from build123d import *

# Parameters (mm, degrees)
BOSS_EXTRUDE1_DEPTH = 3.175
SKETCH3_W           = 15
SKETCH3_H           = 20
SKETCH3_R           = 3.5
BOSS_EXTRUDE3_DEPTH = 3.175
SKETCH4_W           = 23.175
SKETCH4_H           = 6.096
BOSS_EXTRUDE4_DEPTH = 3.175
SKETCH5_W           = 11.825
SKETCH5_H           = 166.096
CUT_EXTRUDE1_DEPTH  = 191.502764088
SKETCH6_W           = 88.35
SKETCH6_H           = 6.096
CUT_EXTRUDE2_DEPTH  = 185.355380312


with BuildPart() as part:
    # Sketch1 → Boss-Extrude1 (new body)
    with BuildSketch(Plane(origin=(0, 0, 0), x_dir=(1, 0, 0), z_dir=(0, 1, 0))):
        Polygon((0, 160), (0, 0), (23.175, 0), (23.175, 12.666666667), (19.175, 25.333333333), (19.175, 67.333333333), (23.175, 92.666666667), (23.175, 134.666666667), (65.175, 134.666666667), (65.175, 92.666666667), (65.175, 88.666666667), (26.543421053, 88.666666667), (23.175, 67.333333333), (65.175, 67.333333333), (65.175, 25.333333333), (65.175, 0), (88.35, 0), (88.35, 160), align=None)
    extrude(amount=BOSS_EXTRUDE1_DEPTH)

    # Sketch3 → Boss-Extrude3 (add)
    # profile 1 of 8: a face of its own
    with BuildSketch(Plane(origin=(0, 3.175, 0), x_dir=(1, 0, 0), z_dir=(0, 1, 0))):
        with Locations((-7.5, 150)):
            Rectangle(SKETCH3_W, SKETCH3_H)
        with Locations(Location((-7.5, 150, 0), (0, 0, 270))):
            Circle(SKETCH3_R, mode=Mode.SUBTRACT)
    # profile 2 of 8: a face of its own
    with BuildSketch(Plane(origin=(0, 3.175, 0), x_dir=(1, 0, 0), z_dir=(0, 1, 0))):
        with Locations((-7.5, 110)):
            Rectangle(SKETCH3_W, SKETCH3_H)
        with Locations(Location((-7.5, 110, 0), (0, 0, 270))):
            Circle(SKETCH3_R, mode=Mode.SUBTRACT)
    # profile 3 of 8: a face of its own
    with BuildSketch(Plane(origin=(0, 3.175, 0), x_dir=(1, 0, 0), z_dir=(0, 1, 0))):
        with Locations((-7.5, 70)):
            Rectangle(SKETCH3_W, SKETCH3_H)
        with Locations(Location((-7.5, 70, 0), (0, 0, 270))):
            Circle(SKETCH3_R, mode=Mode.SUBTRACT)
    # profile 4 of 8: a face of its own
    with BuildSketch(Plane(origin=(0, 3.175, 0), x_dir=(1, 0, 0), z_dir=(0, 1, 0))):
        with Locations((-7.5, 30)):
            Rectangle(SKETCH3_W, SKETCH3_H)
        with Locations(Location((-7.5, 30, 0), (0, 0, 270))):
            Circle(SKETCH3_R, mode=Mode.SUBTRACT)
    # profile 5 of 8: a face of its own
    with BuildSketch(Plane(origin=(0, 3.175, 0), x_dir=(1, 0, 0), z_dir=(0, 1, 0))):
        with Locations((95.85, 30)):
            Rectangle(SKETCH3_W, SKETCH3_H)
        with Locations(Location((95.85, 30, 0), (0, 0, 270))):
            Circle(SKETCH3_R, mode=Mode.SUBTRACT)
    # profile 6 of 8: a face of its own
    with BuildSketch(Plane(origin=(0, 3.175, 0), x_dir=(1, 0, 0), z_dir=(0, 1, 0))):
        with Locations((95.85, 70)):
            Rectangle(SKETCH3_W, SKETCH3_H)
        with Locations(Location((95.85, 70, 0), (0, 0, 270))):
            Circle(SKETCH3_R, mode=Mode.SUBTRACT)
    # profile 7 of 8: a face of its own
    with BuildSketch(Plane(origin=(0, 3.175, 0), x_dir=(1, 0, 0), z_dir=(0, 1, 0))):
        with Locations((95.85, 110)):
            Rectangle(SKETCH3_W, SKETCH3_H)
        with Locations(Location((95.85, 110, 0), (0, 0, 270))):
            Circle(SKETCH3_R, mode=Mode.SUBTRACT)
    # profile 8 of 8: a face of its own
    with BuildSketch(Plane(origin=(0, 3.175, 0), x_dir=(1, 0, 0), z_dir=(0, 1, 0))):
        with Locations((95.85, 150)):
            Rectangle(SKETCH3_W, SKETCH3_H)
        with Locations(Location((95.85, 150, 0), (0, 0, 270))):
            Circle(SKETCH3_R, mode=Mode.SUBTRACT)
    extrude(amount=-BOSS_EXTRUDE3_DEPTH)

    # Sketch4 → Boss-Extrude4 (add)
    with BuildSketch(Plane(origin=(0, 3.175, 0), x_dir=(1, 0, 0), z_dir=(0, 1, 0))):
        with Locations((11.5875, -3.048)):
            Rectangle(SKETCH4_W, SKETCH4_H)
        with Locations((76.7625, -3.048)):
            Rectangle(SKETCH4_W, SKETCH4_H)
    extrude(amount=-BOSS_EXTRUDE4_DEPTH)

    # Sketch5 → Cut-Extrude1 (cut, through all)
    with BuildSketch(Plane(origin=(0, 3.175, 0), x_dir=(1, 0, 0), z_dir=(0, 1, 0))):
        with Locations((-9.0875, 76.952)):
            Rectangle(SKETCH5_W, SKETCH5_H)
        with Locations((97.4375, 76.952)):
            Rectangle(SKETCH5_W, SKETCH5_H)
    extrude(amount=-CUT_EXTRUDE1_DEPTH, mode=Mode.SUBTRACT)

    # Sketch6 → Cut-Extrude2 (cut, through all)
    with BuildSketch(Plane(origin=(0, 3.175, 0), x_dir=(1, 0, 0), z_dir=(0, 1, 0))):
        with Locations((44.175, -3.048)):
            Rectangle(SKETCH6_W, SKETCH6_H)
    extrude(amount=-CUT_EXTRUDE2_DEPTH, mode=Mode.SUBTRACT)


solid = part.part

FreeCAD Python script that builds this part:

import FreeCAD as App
import Part
import Sketcher
from FreeCAD import Vector
Q = App.Units.Quantity

doc = App.newDocument("Part")
body = doc.addObject("PartDesign::Body", "Body")

sketch1 = doc.addObject("Sketcher::SketchObject", "Sketch")
body.addObject(sketch1)
sketch1.AttachmentSupport = (doc.XZ_Plane, [""])
sketch1.MapMode = "FlatFace"
sketch1.addGeometry([
    Part.LineSegment(Vector(0, -160, 0), Vector(0, 0, 0)),
    Part.LineSegment(Vector(0, 0, 0), Vector(23.175, 0, 0)),
    Part.LineSegment(Vector(23.175, 0, 0), Vector(23.175, -12.666667, 0)),
    Part.LineSegment(Vector(23.175, -12.666667, 0), Vector(19.175, -25.333333, 0)),
    Part.LineSegment(Vector(19.175, -25.333333, 0), Vector(19.175, -67.333333, 0)),
    Part.LineSegment(Vector(19.175, -67.333333, 0), Vector(23.175, -92.666667, 0)),
    Part.LineSegment(Vector(23.175, -92.666667, 0), Vector(23.175, -134.666667, 0)),
    Part.LineSegment(Vector(23.175, -134.666667, 0), Vector(65.175, -134.666667, 0)),
    Part.LineSegment(Vector(65.175, -134.666667, 0), Vector(65.175, -88.666667, 0)),
    Part.LineSegment(Vector(65.175, -88.666667, 0), Vector(26.543421, -88.666667, 0)),
    Part.LineSegment(Vector(26.543421, -88.666667, 0), Vector(23.175, -67.333333, 0)),
    Part.LineSegment(Vector(23.175, -67.333333, 0), Vector(65.175, -67.333333, 0)),
    Part.LineSegment(Vector(65.175, -67.333333, 0), Vector(65.175, 0, 0)),
    Part.LineSegment(Vector(65.175, 0, 0), Vector(88.35, 0, 0)),
    Part.LineSegment(Vector(88.35, 0, 0), Vector(88.35, -160, 0)),
    Part.LineSegment(Vector(88.35, -160, 0), Vector(0, -160, 0)),
], False)
sketch1.addConstraint([
    Sketcher.Constraint("Coincident", 0, 2, 1, 1),
    Sketcher.Constraint("Coincident", 1, 2, 2, 1),
    Sketcher.Constraint("Coincident", 2, 2, 3, 1),
    Sketcher.Constraint("Coincident", 3, 2, 4, 1),
    Sketcher.Constraint("Coincident", 4, 2, 5, 1),
    Sketcher.Constraint("Coincident", 5, 2, 6, 1),
    Sketcher.Constraint("Coincident", 6, 2, 7, 1),
    Sketcher.Constraint("Coincident", 7, 2, 8, 1),
    Sketcher.Constraint("Coincident", 8, 2, 9, 1),
    Sketcher.Constraint("Coincident", 9, 2, 10, 1),
    Sketcher.Constraint("Coincident", 10, 2, 11, 1),
    Sketcher.Constraint("Coincident", 11, 2, 12, 1),
    Sketcher.Constraint("Coincident", 12, 2, 13, 1),
    Sketcher.Constraint("Coincident", 13, 2, 14, 1),
    Sketcher.Constraint("Coincident", 14, 2, 15, 1),
    Sketcher.Constraint("Coincident", 15, 2, 0, 1),
    Sketcher.Constraint("Vertical", 0),
    Sketcher.Constraint("Horizontal", 1),
    Sketcher.Constraint("Vertical", 2),
    Sketcher.Constraint("Vertical", 4),
    Sketcher.Constraint("Vertical", 6),
    Sketcher.Constraint("Horizontal", 7),
    Sketcher.Constraint("Vertical", 8),
    Sketcher.Constraint("Horizontal", 9),
    Sketcher.Constraint("Horizontal", 11),
    Sketcher.Constraint("Vertical", 12),
    Sketcher.Constraint("Horizontal", 13),
    Sketcher.Constraint("Vertical", 14),
    Sketcher.Constraint("Horizontal", 15),
    Sketcher.Constraint("Coincident", 0, 2, -1, 1),
    Sketcher.Constraint("PointOnObject", 12, 2, -1),
    Sketcher.Constraint("Parallel", 5, 10),
    Sketcher.Constraint("Horizontal", 4, 2, 10, 2),
    Sketcher.Constraint("Vertical", 2, 2, 5, 2),
    Sketcher.Constraint("Vertical", 6, 2, 10, 2),
    Sketcher.Constraint("Vertical", 8, 2, 11, 2),
    Sketcher.Constraint("Equal", 1, 13),
    Sketcher.Constraint("Equal", 11, 4),
    Sketcher.Constraint("Equal", 4, 6),
    Sketcher.Constraint("DistanceX", 7, 1, 7, 2, Q("42 mm")),
    Sketcher.Constraint("DistanceY", 0, 1, 0, 2, Q("160 mm")),
    Sketcher.Constraint("DistanceY", 8, 1, 8, 2, Q("46 mm")),
    Sketcher.Constraint("DistanceX", 3, 2, 2, 2, Q("4 mm")),
    Sketcher.Constraint("DistanceY", 5, 2, 2, 2, Q("80 mm")),
    Sketcher.Constraint("DistanceX", 15, 2, 15, 1, Q("88.35 mm")),
    Sketcher.Constraint("DistanceX", 9, 2, 9, 1, Q("38.631579 mm")),
    Sketcher.Constraint("DistanceY", 2, 2, 2, 1, Q("12.666667 mm")),
])
pad1 = doc.addObject("PartDesign::Pad", "Pad")
body.addObject(pad1)
pad1.Profile = sketch1
pad1.Length = 3.175
pad1.Reversed = True

sketch2 = doc.addObject("Sketcher::SketchObject", "Sketch001")
body.addObject(sketch2)
sketch2.AttachmentSupport = (doc.XZ_Plane, [""])
sketch2.MapMode = "FlatFace"
sketch2.AttachmentOffset = App.Placement(Vector(0, 0, -3.175), App.Rotation())
sketch2.addGeometry([
    Part.LineSegment(Vector(-15, -160, 0), Vector(-15, -140, 0)),
    Part.LineSegment(Vector(-15, -140, 0), Vector(0, -140, 0)),
    Part.LineSegment(Vector(0, -140, 0), Vector(0, -160, 0)),
    Part.LineSegment(Vector(0, -160, 0), Vector(-15, -160, 0)),
    Part.Circle(Vector(-7.5, -150, 0), Vector(0, 0, 1), 3.5),
    Part.LineSegment(Vector(-15, -120, 0), Vector(-15, -100, 0)),
    Part.LineSegment(Vector(-15, -100, 0), Vector(0, -100, 0)),
    Part.LineSegment(Vector(0, -100, 0), Vector(0, -120, 0)),
    Part.LineSegment(Vector(0, -120, 0), Vector(-15, -120, 0)),
    Part.Circle(Vector(-7.5, -110, 0), Vector(0, 0, 1), 3.5),
    Part.LineSegment(Vector(-15, -80, 0), Vector(-15, -60, 0)),
    Part.LineSegment(Vector(-15, -60, 0), Vector(0, -60, 0)),
    Part.LineSegment(Vector(0, -60, 0), Vector(0, -80, 0)),
    Part.LineSegment(Vector(0, -80, 0), Vector(-15, -80, 0)),
    Part.Circle(Vector(-7.5, -70, 0), Vector(0, 0, 1), 3.5),
    Part.LineSegment(Vector(-15, -40, 0), Vector(-15, -20, 0)),
    Part.LineSegment(Vector(-15, -20, 0), Vector(0, -20, 0)),
    Part.LineSegment(Vector(0, -20, 0), Vector(0, -40, 0)),
    Part.LineSegment(Vector(0, -40, 0), Vector(-15, -40, 0)),
    Part.Circle(Vector(-7.5, -30, 0), Vector(0, 0, 1), 3.5),
    Part.LineSegment(Vector(88.3, -40, 0), Vector(88.3, -20, 0)),
    Part.LineSegment(Vector(88.3, -20, 0), Vector(103.3, -20, 0)),
    Part.LineSegment(Vector(103.3, -20, 0), Vector(103.3, -40, 0)),
    Part.LineSegment(Vector(103.3, -40, 0), Vector(88.3, -40, 0)),
    Part.Circle(Vector(95.8, -30, 0), Vector(0, 0, 1), 3.5),
    Part.LineSegment(Vector(88.3, -80, 0), Vector(88.3, -60, 0)),
    Part.LineSegment(Vector(88.3, -60, 0), Vector(103.3, -60, 0)),
    Part.LineSegment(Vector(103.3, -60, 0), Vector(103.3, -80, 0)),
    Part.LineSegment(Vector(103.3, -80, 0), Vector(88.3, -80, 0)),
    Part.Circle(Vector(95.8, -70, 0), Vector(0, 0, 1), 3.5),
    Part.LineSegment(Vector(88.3, -120, 0), Vector(88.3, -100, 0)),
    Part.LineSegment(Vector(88.3, -100, 0), Vector(103.3, -100, 0)),
    Part.LineSegment(Vector(103.3, -100, 0), Vector(103.3, -120, 0)),
    Part.LineSegment(Vector(103.3, -120, 0), Vector(88.3, -120, 0)),
    Part.Circle(Vector(95.8, -110, 0), Vector(0, 0, 1), 3.5),
    Part.LineSegment(Vector(88.3, -160, 0), Vector(88.3, -140, 0)),
    Part.LineSegment(Vector(88.3, -140, 0), Vector(103.3, -140, 0)),
    Part.LineSegment(Vector(103.3, -140, 0), Vector(103.3, -160, 0)),
    Part.LineSegment(Vector(103.3, -160, 0), Vector(88.3, -160, 0)),
    Part.Circle(Vector(95.8, -150, 0), Vector(0, 0, 1), 3.5),
], False)
sketch2.addConstraint([
    Sketcher.Constraint("Coincident", 0, 2, 1, 1),
    Sketcher.Constraint("Coincident", 1, 2, 2, 1),
    Sketcher.Constraint("Coincident", 2, 2, 3, 1),
    Sketcher.Constraint("Coincident", 3, 2, 0, 1),
    Sketcher.Constraint("Coincident", 5, 2, 6, 1),
    Sketcher.Constraint("Coincident", 6, 2, 7, 1),
    Sketcher.Constraint("Coincident", 7, 2, 8, 1),
    Sketcher.Constraint("Coincident", 8, 2, 5, 1),
    Sketcher.Constraint("Coincident", 10, 2, 11, 1),
    Sketcher.Constraint("Coincident", 11, 2, 12, 1),
    Sketcher.Constraint("Coincident", 12, 2, 13, 1),
    Sketcher.Constraint("Coincident", 13, 2, 10, 1),
    Sketcher.Constraint("Coincident", 15, 2, 16, 1),
    Sketcher.Constraint("Coincident", 16, 2, 17, 1),
    Sketcher.Constraint("Coincident", 17, 2, 18, 1),
    Sketcher.Constraint("Coincident", 18, 2, 15, 1),
    Sketcher.Constraint("Coincident", 20, 2, 21, 1),
    Sketcher.Constraint("Coincident", 21, 2, 22, 1),
    Sketcher.Constraint("Coincident", 22, 2, 23, 1),
    Sketcher.Constraint("Coincident", 23, 2, 20, 1),
    Sketcher.Constraint("Coincident", 25, 2, 26, 1),
    Sketcher.Constraint("Coincident", 26, 2, 27, 1),
    Sketcher.Constraint("Coincident", 27, 2, 28, 1),
    Sketcher.Constraint("Coincident", 28, 2, 25, 1),
    Sketcher.Constraint("Coincident", 30, 2, 31, 1),
    Sketcher.Constraint("Coincident", 31, 2, 32, 1),
    Sketcher.Constraint("Coincident", 32, 2, 33, 1),
    Sketcher.Constraint("Coincident", 33, 2, 30, 1),
    Sketcher.Constraint("Coincident", 35, 2, 36, 1),
    Sketcher.Constraint("Coincident", 36, 2, 37, 1),
    Sketcher.Constraint("Coincident", 37, 2, 38, 1),
    Sketcher.Constraint("Coincident", 38, 2, 35, 1),
    Sketcher.Constraint("Vertical", 0),
    Sketcher.Constraint("Horizontal", 1),
    Sketcher.Constraint("Vertical", 2),
    Sketcher.Constraint("Horizontal", 3),
    Sketcher.Constraint("Vertical", 5),
    Sketcher.Constraint("Horizontal", 6),
    Sketcher.Constraint("Vertical", 7),
    Sketcher.Constraint("Horizontal", 8),
    Sketcher.Constraint("Vertical", 10),
    Sketcher.Constraint("Horizontal", 11),
    Sketcher.Constraint("Vertical", 12),
    Sketcher.Constraint("Horizontal", 13),
    Sketcher.Constraint("Vertical", 15),
    Sketcher.Constraint("Horizontal", 16),
    Sketcher.Constraint("Vertical", 17),
    Sketcher.Constraint("Horizontal", 18),
    Sketcher.Constraint("Vertical", 20),
    Sketcher.Constraint("Horizontal", 21),
    Sketcher.Constraint("Vertical", 22),
    Sketcher.Constraint("Horizontal", 23),
    Sketcher.Constraint("Vertical", 25),
    Sketcher.Constraint("Horizontal", 26),
    Sketcher.Constraint("Vertical", 27),
    Sketcher.Constraint("Horizontal", 28),
    Sketcher.Constraint("Vertical", 30),
    Sketcher.Constraint("Horizontal", 31),
    Sketcher.Constraint("Vertical", 32),
    Sketcher.Constraint("Horizontal", 33),
    Sketcher.Constraint("Vertical", 35),
    Sketcher.Constraint("Horizontal", 36),
    Sketcher.Constraint("Vertical", 37),
    Sketcher.Constraint("Horizontal", 38),
    Sketcher.Constraint("Equal", 4, 9),
    Sketcher.Constraint("Equal", 9, 14),
    Sketcher.Constraint("Equal", 14, 19),
    Sketcher.Constraint("Equal", 19, 24),
    Sketcher.Constraint("Equal", 24, 29),
    Sketcher.Constraint("Equal", 29, 34),
    Sketcher.Constraint("Equal", 34, 39),
    Sketcher.Constraint("PointOnObject", 1, 2, -2),
    Sketcher.Constraint("PointOnObject", 6, 2, -2),
    Sketcher.Constraint("PointOnObject", 11, 2, -2),
    Sketcher.Constraint("PointOnObject", 16, 2, -2),
    Sketcher.Constraint("Horizontal", 19, 3, 24, 3),
    Sketcher.Constraint("Horizontal", 14, 3, 29, 3),
    Sketcher.Constraint("Horizontal", 9, 3, 34, 3),
    Sketcher.Constraint("Horizontal", 4, 3, 39, 3),
    Sketcher.Constraint("Horizontal", 16, 2, 20, 2),
    Sketcher.Constraint("Horizontal", 18, 2, 22, 2),
    Sketcher.Constraint("Horizontal", 11, 2, 25, 2),
    Sketcher.Constraint("Horizontal", 13, 2, 27, 2),
    Sketcher.Constraint("Horizontal", 6, 2, 30, 2),
    Sketcher.Constraint("Horizontal", 8, 2, 32, 2),
    Sketcher.Constraint("Horizontal", 1, 2, 35, 2),
    Sketcher.Constraint("Horizontal", 3, 2, 37, 2),
    Sketcher.Constraint("Vertical", 4, 3, 9, 3),
    Sketcher.Constraint("Vertical", 9, 3, 14, 3),
    Sketcher.Constraint("Vertical", 14, 3, 19, 3),
    Sketcher.Constraint("Vertical", 24, 3, 29, 3),
    Sketcher.Constraint("Vertical", 29, 3, 34, 3),
    Sketcher.Constraint("Vertical", 34, 3, 39, 3),
    Sketcher.Constraint("Vertical", 3, 2, 5, 2),
    Sketcher.Constraint("Vertical", 8, 2, 10, 2),
    Sketcher.Constraint("Vertical", 13, 2, 15, 2),
    Sketcher.Constraint("Vertical", 23, 2, 25, 2),
    Sketcher.Constraint("Vertical", 22, 2, 26, 2),
    Sketcher.Constraint("Vertical", 28, 2, 30, 2),
    Sketcher.Constraint("Vertical", 27, 2, 31, 2),
    Sketcher.Constraint("Vertical", 33, 2, 35, 2),
    Sketcher.Constraint("Vertical", 32, 2, 36, 2),
    Sketcher.Constraint("Equal", 18, 21),
    Sketcher.Constraint("Equal", 2, 5),
    Sketcher.Constraint("Equal", 7, 10),
    Sketcher.Constraint("Equal", 12, 15),
    Sketcher.Constraint("Diameter", 4, Q("7 mm")),
    Sketcher.Constraint("DistanceX", 1, 1, 1, 2, Q("15 mm")),
    Sketcher.Constraint("DistanceY", 0, 1, 0, 2, Q("20 mm")),
    Sketcher.Constraint("DistanceY", 4, 3, -1, 1, Q("150 mm")),
    Sketcher.Constraint("DistanceY", 9, 3, -1, 1, Q("110 mm")),
    Sketcher.Constraint("DistanceY", 14, 3, -1, 1, Q("70 mm")),
    Sketcher.Constraint("DistanceY", 19, 3, -1, 1, Q("30 mm")),
    Sketcher.Constraint("DistanceY", 0, 2, -1, 1, Q("140 mm")),
    Sketcher.Constraint("DistanceY", 5, 2, -1, 1, Q("100 mm")),
    Sketcher.Constraint("DistanceY", 10, 2, -1, 1, Q("60 mm")),
    Sketcher.Constraint("DistanceY", 15, 2, -1, 1, Q("20 mm")),
    Sketcher.Constraint("DistanceX", 4, 3, -1, 1, Q("7.5 mm")),
    Sketcher.Constraint("DistanceX", 20, 2, 24, 3, Q("7.5 mm")),
    Sketcher.Constraint("DistanceX", -1, 1, 24, 3, Q("95.85 mm")),
])
pad2 = doc.addObject("PartDesign::Pad", "Pad001")
body.addObject(pad2)
pad2.Profile = sketch2
pad2.Length = 3.175

sketch3 = doc.addObject("Sketcher::SketchObject", "Sketch002")
body.addObject(sketch3)
sketch3.AttachmentSupport = (doc.XZ_Plane, [""])
sketch3.MapMode = "FlatFace"
sketch3.AttachmentOffset = App.Placement(Vector(0, 0, -3.175), App.Rotation())
sketch3.addGeometry([
    Part.LineSegment(Vector(0, 0, 0), Vector(0, 6, 0)),
    Part.LineSegment(Vector(0, 6, 0), Vector(23, 6, 0)),
    Part.LineSegment(Vector(23, 6, 0), Vector(23, 0, 0)),
    Part.LineSegment(Vector(23, 0, 0), Vector(0, 0, 0)),
    Part.LineSegment(Vector(65, 0, 0), Vector(65, 6, 0)),
    Part.LineSegment(Vector(65, 6, 0), Vector(88, 6, 0)),
    Part.LineSegment(Vector(88, 6, 0), Vector(88, 0, 0)),
    Part.LineSegment(Vector(88, 0, 0), Vector(65, 0, 0)),
], False)
sketch3.addConstraint([
    Sketcher.Constraint("Coincident", 0, 2, 1, 1),
    Sketcher.Constraint("Coincident", 1, 2, 2, 1),
    Sketcher.Constraint("Coincident", 2, 2, 3, 1),
    Sketcher.Constraint("Coincident", 3, 2, 0, 1),
    Sketcher.Constraint("Coincident", 4, 2, 5, 1),
    Sketcher.Constraint("Coincident", 5, 2, 6, 1),
    Sketcher.Constraint("Coincident", 6, 2, 7, 1),
    Sketcher.Constraint("Coincident", 7, 2, 4, 1),
    Sketcher.Constraint("Vertical", 0),
    Sketcher.Constraint("Horizontal", 1),
    Sketcher.Constraint("Vertical", 2),
    Sketcher.Constraint("Horizontal", 3),
    Sketcher.Constraint("Vertical", 4),
    Sketcher.Constraint("Horizontal", 5),
    Sketcher.Constraint("Vertical", 6),
    Sketcher.Constraint("Horizontal", 7),
    Sketcher.Constraint("Coincident", 3, 2, -1, 1),
    Sketcher.Constraint("PointOnObject", 6, 2, -1),
    Sketcher.Constraint("Horizontal", 1, 2, 4, 2),
    Sketcher.Constraint("Equal", 3, 5),
    Sketcher.Constraint("DistanceX", 1, 2, 4, 2, Q("42 mm")),
    Sketcher.Constraint("DistanceX", 1, 1, 1, 2, Q("23.175 mm")),
    Sketcher.Constraint("DistanceY", 0, 1, 0, 2, Q("6.096 mm")),
])
pad3 = doc.addObject("PartDesign::Pad", "Pad002")
body.addObject(pad3)
pad3.Profile = sketch3
pad3.Length = 3.175

sketch4 = doc.addObject("Sketcher::SketchObject", "Sketch003")
body.addObject(sketch4)
sketch4.AttachmentSupport = (doc.XZ_Plane, [""])
sketch4.MapMode = "FlatFace"
sketch4.AttachmentOffset = App.Placement(Vector(0, 0, -3.175), App.Rotation())
sketch4.addGeometry([
    Part.LineSegment(Vector(-15, -160, 0), Vector(-15, 6, 0)),
    Part.LineSegment(Vector(-15, 6, 0), Vector(-3, 6, 0)),
    Part.LineSegment(Vector(-3, 6, 0), Vector(-3, -160, 0)),
    Part.LineSegment(Vector(-3, -160, 0), Vector(-15, -160, 0)),
    Part.LineSegment(Vector(92, -160, 0), Vector(92, 6, 0)),
    Part.LineSegment(Vector(92, 6, 0), Vector(103, 6, 0)),
    Part.LineSegment(Vector(103, 6, 0), Vector(103, -160, 0)),
    Part.LineSegment(Vector(103, -160, 0), Vector(92, -160, 0)),
], False)
sketch4.addConstraint([
    Sketcher.Constraint("Coincident", 0, 2, 1, 1),
    Sketcher.Constraint("Coincident", 1, 2, 2, 1),
    Sketcher.Constraint("Coincident", 2, 2, 3, 1),
    Sketcher.Constraint("Coincident", 3, 2, 0, 1),
    Sketcher.Constraint("Coincident", 4, 2, 5, 1),
    Sketcher.Constraint("Coincident", 5, 2, 6, 1),
    Sketcher.Constraint("Coincident", 6, 2, 7, 1),
    Sketcher.Constraint("Coincident", 7, 2, 4, 1),
    Sketcher.Constraint("Vertical", 0),
    Sketcher.Constraint("Horizontal", 1),
    Sketcher.Constraint("Vertical", 2),
    Sketcher.Constraint("Horizontal", 3),
    Sketcher.Constraint("Vertical", 4),
    Sketcher.Constraint("Horizontal", 5),
    Sketcher.Constraint("Vertical", 6),
    Sketcher.Constraint("Horizontal", 7),
    Sketcher.Constraint("Horizontal", 1, 2, 4, 2),
    Sketcher.Constraint("Horizontal", 3, 2, 6, 2),
    Sketcher.Constraint("Equal", 3, 5),
    Sketcher.Constraint("DistanceX", 0, 2, -1, 1, Q("15 mm")),
    Sketcher.Constraint("DistanceY", 2, 2, -1, 1, Q("160 mm")),
    Sketcher.Constraint("DistanceX", 1, 2, 4, 2, Q("94.7 mm")),
    Sketcher.Constraint("DistanceX", 1, 1, 1, 2, Q("11.825 mm")),
    Sketcher.Constraint("DistanceY", 0, 1, 0, 2, Q("166.096 mm")),
])
pocket1 = doc.addObject("PartDesign::Pocket", "Pocket")
body.addObject(pocket1)
pocket1.Profile = sketch4
pocket1.Type = "ThroughAll"
pocket1.Reversed = True

sketch5 = doc.addObject("Sketcher::SketchObject", "Sketch004")
body.addObject(sketch5)
sketch5.AttachmentSupport = (doc.XZ_Plane, [""])
sketch5.MapMode = "FlatFace"
sketch5.AttachmentOffset = App.Placement(Vector(0, 0, -3.175), App.Rotation())
sketch5.addGeometry([
    Part.LineSegment(Vector(0, 0, 0), Vector(0, 6, 0)),
    Part.LineSegment(Vector(0, 6, 0), Vector(88, 6, 0)),
    Part.LineSegment(Vector(88, 6, 0), Vector(88, 0, 0)),
    Part.LineSegment(Vector(88, 0, 0), Vector(0, 0, 0)),
], False)
sketch5.addConstraint([
    Sketcher.Constraint("Coincident", 0, 2, 1, 1),
    Sketcher.Constraint("Coincident", 1, 2, 2, 1),
    Sketcher.Constraint("Coincident", 2, 2, 3, 1),
    Sketcher.Constraint("Coincident", 3, 2, 0, 1),
    Sketcher.Constraint("Vertical", 0),
    Sketcher.Constraint("Horizontal", 1),
    Sketcher.Constraint("Vertical", 2),
    Sketcher.Constraint("Horizontal", 3),
    Sketcher.Constraint("Coincident", 3, 2, -1, 1),
    Sketcher.Constraint("DistanceX", 1, 1, 1, 2, Q("88.35 mm")),
    Sketcher.Constraint("DistanceY", 0, 1, 0, 2, Q("6.096 mm")),
])
pocket2 = doc.addObject("PartDesign::Pocket", "Pocket001")
body.addObject(pocket2)
pocket2.Profile = sketch5
pocket2.Type = "ThroughAll"
pocket2.Reversed = True

doc.recompute()
